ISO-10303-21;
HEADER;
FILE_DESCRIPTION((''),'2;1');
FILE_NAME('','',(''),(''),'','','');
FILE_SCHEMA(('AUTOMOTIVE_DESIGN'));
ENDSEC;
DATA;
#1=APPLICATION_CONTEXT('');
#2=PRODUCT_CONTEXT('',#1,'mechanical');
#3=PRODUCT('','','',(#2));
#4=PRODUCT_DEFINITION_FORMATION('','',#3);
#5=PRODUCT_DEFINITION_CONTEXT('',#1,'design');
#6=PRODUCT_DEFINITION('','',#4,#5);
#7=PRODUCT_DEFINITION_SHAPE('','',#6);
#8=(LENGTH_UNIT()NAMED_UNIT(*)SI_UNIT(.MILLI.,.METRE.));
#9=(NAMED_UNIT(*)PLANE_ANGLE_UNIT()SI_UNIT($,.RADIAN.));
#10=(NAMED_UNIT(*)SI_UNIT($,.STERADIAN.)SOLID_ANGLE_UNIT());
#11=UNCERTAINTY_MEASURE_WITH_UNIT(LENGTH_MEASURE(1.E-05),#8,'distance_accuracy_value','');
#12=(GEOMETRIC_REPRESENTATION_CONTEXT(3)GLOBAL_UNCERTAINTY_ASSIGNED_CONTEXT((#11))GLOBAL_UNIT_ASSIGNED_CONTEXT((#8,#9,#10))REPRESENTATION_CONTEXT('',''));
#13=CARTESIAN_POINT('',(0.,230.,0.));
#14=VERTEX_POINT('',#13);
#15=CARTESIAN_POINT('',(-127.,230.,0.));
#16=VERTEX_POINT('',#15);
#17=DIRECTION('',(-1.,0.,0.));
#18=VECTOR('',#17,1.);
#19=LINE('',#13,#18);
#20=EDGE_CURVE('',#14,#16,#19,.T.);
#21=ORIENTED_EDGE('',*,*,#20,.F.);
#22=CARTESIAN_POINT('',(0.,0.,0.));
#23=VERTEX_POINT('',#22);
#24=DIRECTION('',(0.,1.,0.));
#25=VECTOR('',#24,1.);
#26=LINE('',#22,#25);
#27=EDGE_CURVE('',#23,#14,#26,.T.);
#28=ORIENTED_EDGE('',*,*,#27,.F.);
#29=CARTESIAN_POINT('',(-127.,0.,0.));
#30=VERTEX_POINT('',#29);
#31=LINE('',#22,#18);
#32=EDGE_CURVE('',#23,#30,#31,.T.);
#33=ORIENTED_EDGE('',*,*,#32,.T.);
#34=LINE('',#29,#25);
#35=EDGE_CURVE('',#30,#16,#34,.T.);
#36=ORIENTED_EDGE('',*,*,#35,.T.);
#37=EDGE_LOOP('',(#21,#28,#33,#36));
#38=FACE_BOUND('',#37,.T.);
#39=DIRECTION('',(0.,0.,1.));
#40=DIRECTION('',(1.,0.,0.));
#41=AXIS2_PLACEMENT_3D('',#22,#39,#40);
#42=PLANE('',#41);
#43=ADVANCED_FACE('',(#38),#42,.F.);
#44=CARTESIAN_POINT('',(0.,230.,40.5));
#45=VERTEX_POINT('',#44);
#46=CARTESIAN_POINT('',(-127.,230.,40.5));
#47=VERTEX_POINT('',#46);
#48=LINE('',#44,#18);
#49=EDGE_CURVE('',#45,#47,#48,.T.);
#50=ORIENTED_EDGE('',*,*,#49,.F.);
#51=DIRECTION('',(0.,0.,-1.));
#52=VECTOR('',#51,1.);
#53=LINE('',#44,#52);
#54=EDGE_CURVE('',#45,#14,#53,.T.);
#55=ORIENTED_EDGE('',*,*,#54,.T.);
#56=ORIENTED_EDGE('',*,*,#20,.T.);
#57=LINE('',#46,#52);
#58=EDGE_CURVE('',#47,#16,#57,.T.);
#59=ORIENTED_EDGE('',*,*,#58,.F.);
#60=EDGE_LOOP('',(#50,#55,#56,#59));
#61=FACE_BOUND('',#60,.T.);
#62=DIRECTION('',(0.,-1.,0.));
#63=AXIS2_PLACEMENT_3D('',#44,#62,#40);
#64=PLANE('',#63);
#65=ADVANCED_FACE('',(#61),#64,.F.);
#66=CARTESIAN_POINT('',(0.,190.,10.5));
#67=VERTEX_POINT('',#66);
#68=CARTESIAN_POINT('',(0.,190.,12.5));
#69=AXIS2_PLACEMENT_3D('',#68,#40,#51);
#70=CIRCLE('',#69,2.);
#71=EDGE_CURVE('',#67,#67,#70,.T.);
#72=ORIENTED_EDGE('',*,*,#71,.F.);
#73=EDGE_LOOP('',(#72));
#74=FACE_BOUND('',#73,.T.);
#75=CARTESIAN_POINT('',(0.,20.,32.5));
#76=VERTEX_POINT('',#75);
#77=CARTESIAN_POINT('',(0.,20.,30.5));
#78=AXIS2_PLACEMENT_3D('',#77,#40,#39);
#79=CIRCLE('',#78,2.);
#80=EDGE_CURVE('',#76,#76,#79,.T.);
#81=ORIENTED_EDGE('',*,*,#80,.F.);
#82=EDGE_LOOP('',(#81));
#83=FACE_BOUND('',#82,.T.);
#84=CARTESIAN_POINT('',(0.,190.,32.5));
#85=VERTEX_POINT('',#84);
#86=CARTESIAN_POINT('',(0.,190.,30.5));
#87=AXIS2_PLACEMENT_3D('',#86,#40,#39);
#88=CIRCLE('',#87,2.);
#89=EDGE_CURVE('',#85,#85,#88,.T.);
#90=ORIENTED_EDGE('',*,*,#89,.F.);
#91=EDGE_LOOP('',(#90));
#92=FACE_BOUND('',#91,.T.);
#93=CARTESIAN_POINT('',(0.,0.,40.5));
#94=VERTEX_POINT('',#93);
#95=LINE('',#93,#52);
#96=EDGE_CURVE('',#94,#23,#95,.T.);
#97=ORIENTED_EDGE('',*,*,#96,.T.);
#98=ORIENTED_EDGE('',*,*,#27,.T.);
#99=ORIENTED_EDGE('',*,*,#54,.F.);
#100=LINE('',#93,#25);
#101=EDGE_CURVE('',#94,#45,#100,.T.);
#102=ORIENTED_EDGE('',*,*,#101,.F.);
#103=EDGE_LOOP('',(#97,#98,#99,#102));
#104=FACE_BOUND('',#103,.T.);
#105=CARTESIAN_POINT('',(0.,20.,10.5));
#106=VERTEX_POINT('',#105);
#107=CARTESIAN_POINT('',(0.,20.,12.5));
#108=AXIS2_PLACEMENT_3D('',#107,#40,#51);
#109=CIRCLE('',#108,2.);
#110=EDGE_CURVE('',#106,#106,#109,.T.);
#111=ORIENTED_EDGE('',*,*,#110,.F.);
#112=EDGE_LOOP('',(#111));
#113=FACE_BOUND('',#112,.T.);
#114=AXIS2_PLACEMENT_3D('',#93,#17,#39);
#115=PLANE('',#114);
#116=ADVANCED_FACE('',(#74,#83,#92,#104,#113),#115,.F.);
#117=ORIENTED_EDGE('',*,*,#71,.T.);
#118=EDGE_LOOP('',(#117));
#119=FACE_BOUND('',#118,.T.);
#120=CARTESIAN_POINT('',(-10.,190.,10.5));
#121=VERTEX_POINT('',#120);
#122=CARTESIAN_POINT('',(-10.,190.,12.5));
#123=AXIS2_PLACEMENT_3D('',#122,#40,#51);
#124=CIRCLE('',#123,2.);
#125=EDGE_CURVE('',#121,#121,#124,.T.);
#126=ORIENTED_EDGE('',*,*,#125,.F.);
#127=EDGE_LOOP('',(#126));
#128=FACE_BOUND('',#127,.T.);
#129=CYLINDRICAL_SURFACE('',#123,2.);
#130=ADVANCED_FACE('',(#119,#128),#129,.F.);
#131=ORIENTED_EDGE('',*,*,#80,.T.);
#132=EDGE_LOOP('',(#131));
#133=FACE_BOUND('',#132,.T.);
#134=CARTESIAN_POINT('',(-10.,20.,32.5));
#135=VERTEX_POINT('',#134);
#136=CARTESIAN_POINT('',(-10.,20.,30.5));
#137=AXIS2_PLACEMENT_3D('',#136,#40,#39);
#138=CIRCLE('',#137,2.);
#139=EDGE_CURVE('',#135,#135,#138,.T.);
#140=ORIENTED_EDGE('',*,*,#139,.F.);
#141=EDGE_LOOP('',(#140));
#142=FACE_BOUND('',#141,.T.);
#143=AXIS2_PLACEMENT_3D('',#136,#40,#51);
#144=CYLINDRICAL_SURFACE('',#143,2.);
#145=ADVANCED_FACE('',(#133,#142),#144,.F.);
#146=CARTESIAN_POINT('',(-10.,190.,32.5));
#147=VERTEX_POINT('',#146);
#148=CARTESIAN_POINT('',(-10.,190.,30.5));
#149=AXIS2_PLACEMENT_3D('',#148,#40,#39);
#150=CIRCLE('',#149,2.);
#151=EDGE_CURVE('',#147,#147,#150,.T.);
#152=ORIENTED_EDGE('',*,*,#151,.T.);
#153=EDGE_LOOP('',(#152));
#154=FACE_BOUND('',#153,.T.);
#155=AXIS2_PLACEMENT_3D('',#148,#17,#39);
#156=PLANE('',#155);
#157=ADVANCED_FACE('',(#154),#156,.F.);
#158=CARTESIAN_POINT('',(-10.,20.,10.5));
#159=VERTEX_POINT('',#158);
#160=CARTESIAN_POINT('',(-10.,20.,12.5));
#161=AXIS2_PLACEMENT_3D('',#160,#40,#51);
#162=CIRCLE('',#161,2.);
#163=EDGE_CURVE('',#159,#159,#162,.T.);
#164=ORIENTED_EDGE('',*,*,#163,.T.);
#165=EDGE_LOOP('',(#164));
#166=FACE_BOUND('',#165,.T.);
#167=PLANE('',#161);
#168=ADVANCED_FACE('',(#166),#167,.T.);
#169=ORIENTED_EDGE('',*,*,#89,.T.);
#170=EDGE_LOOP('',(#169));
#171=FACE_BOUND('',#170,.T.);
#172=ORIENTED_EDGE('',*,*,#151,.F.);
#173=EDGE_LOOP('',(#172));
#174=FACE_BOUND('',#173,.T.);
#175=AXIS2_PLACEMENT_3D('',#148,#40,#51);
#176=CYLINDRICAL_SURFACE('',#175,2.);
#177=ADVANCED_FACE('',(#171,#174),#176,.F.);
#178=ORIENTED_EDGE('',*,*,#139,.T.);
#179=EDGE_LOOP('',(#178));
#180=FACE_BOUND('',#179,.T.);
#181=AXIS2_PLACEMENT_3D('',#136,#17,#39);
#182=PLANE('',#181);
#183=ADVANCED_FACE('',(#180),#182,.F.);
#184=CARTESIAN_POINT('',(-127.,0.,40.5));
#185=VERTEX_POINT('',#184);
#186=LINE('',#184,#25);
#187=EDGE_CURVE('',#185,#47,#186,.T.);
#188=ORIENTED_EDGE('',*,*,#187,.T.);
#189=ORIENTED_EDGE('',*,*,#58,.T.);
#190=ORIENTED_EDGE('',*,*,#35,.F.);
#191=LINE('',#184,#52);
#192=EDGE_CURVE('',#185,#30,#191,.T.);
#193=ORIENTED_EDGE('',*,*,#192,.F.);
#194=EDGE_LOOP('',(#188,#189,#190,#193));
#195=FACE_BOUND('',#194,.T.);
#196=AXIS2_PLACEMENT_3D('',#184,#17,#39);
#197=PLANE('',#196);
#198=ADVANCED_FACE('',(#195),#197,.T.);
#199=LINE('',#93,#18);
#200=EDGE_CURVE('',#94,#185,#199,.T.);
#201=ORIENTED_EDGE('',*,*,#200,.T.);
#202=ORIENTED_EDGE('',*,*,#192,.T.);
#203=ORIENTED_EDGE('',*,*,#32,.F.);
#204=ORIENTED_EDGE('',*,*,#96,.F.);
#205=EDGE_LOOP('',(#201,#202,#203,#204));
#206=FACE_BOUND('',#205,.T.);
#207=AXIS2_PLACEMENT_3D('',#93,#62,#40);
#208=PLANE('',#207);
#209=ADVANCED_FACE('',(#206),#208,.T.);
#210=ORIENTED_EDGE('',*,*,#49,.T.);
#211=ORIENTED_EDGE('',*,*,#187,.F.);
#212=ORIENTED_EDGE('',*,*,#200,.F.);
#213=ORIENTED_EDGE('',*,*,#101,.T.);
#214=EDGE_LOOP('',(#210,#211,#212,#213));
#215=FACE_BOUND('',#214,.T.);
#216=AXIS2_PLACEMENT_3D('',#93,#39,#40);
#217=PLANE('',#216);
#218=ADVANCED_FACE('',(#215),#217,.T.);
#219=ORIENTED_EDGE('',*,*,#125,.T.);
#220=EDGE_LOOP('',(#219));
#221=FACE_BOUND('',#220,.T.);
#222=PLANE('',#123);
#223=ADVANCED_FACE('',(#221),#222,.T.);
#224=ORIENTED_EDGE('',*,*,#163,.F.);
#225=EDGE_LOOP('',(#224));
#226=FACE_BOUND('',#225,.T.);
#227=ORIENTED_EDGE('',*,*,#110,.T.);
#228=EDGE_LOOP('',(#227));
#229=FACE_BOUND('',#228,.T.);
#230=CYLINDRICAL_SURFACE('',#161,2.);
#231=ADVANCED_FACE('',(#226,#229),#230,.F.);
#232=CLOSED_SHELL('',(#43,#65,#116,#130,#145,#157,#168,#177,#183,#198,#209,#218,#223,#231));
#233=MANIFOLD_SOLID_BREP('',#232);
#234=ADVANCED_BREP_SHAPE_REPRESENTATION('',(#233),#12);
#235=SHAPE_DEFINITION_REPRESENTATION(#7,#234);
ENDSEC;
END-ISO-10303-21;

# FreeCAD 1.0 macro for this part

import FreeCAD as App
import Part
import Sketcher
from FreeCAD import Vector
Q = App.Units.Quantity


def add_polygon(sketch, points):
    """Adds a closed chain of lines whose ends are joined by coincident constraints."""
    first, n = sketch.GeometryCount, len(points)
    for a, b in zip(points, points[1:] + points[:1]):
        sketch.addGeometry(Part.LineSegment(App.Vector(*a, 0), App.Vector(*b, 0)), False)
    for i in range(n):
        sketch.addConstraint(Sketcher.Constraint("Coincident", first + i, 2, first + (i + 1) % n, 1))

doc = App.newDocument("Part")
body = doc.addObject("PartDesign::Body", "Body")

# Sketch on XY plane
sketch1 = body.newObject("Sketcher::SketchObject", "Sketch")
sketch1.AttachmentSupport = (doc.getObject("XY_Plane"), [""])
sketch1.MapMode = "FlatFace"
add_polygon(sketch1, [(-127, 230), (-127, 0), (0, 0), (0, 230)])  # lines 0-3
sketch1.addConstraint([
    Sketcher.Constraint("Vertical", 0),
    Sketcher.Constraint("Horizontal", 1),
    Sketcher.Constraint("Vertical", 2),
    Sketcher.Constraint("Horizontal", 3),
    Sketcher.Constraint("Coincident", 1, 2, -1, 1),
    Sketcher.Constraint("DistanceX", 1, 1, 1, 2, Q("127 mm")),
    Sketcher.Constraint("DistanceY", 0, 2, 0, 1, Q("230 mm")),
])
pad1 = body.newObject("PartDesign::Pad", "Pad")
pad1.Profile = sketch1
pad1.Length = 40.5

# Sketch on YZ plane
sketch2 = body.newObject("Sketcher::SketchObject", "Sketch001")
sketch2.AttachmentSupport = (doc.getObject("YZ_Plane"), [""])
sketch2.MapMode = "FlatFace"
sketch2.addGeometry([
    Part.Circle(Vector(190, 12.5, 0), Vector(0, 0, 1), 2),
    Part.Circle(Vector(20, 12.5, 0), Vector(0, 0, 1), 2),
    Part.Circle(Vector(190, 30.5, 0), Vector(0, 0, 1), 2),
    Part.Circle(Vector(20, 30.5, 0), Vector(0, 0, 1), 2),
], False)
sketch2.addConstraint([
    Sketcher.Constraint("Equal", 0, 1),
    Sketcher.Constraint("Equal", 1, 2),
    Sketcher.Constraint("Equal", 2, 3),
    Sketcher.Constraint("Horizontal", 0, 3, 1, 3),
    Sketcher.Constraint("Horizontal", 2, 3, 3, 3),
    Sketcher.Constraint("Vertical", 0, 3, 2, 3),
    Sketcher.Constraint("Vertical", 1, 3, 3, 3),
    Sketcher.Constraint("Diameter", 0, Q("4 mm")),
    Sketcher.Constraint("DistanceX", -1, 1, 0, 3, Q("190 mm")),
    Sketcher.Constraint("DistanceX", -1, 1, 1, 3, Q("20 mm")),
    Sketcher.Constraint("DistanceY", 0, 3, 2, 3, Q("18 mm")),
    Sketcher.Constraint("DistanceY", -1, 1, 0, 3, Q("12.5 mm")),
])
pocket1 = body.newObject("PartDesign::Pocket", "Pocket")
pocket1.Profile = sketch2
pocket1.Length = 10

doc.recompute()
